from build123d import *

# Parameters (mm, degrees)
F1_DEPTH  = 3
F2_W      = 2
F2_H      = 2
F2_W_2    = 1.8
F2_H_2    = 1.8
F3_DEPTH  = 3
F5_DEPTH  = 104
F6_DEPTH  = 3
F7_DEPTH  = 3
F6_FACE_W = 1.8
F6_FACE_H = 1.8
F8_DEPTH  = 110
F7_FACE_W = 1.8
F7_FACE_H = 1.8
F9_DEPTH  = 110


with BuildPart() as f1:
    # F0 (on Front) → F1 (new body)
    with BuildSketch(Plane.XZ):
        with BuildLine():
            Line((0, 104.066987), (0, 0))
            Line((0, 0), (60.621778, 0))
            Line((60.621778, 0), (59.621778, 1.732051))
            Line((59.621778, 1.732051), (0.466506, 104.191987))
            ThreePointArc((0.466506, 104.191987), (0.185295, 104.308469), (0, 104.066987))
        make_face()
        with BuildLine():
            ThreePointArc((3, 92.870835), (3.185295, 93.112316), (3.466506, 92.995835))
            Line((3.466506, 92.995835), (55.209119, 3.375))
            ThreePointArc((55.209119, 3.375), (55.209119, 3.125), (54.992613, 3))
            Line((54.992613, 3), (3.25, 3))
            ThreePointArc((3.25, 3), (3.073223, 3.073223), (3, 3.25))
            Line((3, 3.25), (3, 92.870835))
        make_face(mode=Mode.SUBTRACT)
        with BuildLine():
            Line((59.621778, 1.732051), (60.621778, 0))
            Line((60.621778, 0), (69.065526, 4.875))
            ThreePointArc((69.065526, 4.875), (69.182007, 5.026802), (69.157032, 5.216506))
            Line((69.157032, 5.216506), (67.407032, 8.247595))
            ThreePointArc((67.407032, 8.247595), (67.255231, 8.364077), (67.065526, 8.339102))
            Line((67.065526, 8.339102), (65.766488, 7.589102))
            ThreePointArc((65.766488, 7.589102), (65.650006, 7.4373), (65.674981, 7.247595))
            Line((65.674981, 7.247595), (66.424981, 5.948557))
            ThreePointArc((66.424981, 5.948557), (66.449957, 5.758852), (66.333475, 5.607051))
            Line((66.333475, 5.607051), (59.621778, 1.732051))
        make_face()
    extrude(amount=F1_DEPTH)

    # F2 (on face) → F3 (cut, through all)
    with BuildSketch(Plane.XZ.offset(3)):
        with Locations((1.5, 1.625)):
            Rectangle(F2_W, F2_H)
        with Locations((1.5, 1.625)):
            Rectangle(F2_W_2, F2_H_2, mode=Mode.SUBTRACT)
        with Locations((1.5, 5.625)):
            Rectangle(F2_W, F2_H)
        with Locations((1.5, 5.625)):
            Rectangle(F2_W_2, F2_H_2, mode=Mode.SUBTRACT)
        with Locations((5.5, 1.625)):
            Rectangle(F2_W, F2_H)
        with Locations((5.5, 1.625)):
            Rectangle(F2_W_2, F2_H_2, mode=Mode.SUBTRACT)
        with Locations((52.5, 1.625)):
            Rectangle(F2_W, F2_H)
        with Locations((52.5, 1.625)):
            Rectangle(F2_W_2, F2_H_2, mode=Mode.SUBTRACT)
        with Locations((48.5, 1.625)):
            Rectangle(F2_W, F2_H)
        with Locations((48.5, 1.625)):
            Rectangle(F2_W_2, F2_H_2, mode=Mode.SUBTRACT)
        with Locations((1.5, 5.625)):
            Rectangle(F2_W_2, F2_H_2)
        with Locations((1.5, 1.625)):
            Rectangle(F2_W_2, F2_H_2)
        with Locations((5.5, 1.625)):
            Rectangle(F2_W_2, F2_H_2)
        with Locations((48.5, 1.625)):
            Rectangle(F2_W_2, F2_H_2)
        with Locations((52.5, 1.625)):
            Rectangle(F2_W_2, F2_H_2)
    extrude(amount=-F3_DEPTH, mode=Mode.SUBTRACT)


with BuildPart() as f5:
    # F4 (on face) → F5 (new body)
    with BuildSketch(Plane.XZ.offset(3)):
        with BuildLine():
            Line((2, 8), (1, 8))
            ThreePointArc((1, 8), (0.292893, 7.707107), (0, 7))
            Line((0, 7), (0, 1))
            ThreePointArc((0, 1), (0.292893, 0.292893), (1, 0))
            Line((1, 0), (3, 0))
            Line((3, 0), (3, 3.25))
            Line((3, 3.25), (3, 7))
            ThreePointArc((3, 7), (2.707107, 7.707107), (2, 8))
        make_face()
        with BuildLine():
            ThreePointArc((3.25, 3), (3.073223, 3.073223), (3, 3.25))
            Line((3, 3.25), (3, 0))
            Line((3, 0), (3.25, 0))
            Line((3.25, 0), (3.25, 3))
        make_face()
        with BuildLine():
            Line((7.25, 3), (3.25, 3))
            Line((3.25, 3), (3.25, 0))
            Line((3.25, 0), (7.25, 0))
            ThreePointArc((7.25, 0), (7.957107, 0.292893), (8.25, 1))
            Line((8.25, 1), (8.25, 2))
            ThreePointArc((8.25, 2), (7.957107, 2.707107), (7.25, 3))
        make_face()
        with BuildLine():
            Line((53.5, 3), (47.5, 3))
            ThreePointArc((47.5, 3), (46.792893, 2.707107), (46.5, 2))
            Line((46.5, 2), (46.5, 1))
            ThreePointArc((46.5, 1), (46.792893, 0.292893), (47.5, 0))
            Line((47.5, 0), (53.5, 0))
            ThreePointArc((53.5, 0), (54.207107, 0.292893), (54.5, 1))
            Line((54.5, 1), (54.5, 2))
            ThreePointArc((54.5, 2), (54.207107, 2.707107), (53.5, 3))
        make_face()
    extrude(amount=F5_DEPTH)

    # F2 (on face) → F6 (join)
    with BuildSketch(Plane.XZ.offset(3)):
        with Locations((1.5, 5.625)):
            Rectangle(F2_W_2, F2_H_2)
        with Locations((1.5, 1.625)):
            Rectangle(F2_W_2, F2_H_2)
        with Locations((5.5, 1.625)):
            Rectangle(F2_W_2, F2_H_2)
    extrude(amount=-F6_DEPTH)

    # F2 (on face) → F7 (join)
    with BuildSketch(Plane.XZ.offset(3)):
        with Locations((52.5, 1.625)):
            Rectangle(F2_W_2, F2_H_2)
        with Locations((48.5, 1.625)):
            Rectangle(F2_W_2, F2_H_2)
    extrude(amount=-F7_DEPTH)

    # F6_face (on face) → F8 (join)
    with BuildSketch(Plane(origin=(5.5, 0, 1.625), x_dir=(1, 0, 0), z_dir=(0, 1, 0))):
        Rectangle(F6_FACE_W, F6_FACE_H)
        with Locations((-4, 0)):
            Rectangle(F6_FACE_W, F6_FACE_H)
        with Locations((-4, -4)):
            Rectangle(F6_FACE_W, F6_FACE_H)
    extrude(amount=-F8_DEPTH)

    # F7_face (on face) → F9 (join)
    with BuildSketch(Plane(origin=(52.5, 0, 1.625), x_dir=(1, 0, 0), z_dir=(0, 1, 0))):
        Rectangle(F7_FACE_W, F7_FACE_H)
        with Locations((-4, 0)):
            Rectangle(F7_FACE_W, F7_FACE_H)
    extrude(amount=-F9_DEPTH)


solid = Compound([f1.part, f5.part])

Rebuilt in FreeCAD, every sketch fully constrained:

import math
import FreeCAD as App
import Part
import Sketcher

V = App.Vector
Q = App.Units.Quantity


def add_polygon(sketch, points):
    """Adds a closed chain of lines whose ends are joined by coincident constraints."""
    first, n = sketch.GeometryCount, len(points)
    for a, b in zip(points, points[1:] + points[:1]):
        sketch.addGeometry(Part.LineSegment(App.Vector(*a, 0), App.Vector(*b, 0)), False)
    for i in range(n):
        sketch.addConstraint(Sketcher.Constraint("Coincident", first + i, 2, first + (i + 1) % n, 1))

doc = App.newDocument("Part")
body = doc.addObject("PartDesign::Body", "Body")

sketch1 = body.newObject("Sketcher::SketchObject", "Sketch")
sketch1.AttachmentSupport = (doc.getObject("XZ_Plane"), [""])
sketch1.MapMode = "FlatFace"
sketch1.addGeometry(Part.LineSegment(V(0, 104.07, 0), V(0, 0, 0)), False)
sketch1.addGeometry(Part.LineSegment(V(0, 0, 0), V(60.62, 0, 0)), False)
sketch1.addGeometry(Part.LineSegment(V(60.62, 0, 0), V(69.07, 4.88, 0)), False)
sketch1.addGeometry(Part.ArcOfCircle(Part.Circle(V(68.94, 5.09, 0), V(0, 0, 1), 0.25), math.radians(-60), math.radians(30)), False)
sketch1.addGeometry(Part.LineSegment(V(69.16, 5.22, 0), V(67.41, 8.25, 0)), False)
sketch1.addGeometry(Part.ArcOfCircle(Part.Circle(V(67.19, 8.12, 0), V(0, 0, 1), 0.25), math.radians(30), math.radians(120)), False)
sketch1.addGeometry(Part.LineSegment(V(67.07, 8.34, 0), V(65.77, 7.59, 0)), False)
sketch1.addGeometry(Part.ArcOfCircle(Part.Circle(V(65.89, 7.37, 0), V(0, 0, 1), 0.25), math.radians(120), math.radians(210)), False)
sketch1.addGeometry(Part.LineSegment(V(65.67, 7.25, 0), V(66.42, 5.95, 0)), False)
sketch1.addGeometry(Part.ArcOfCircle(Part.Circle(V(66.21, 5.82, 0), V(0, 0, 1), 0.25), math.radians(-60), math.radians(30)), False)
sketch1.addGeometry(Part.LineSegment(V(66.33, 5.61, 0), V(59.62, 1.73, 0)), False)
sketch1.addGeometry(Part.LineSegment(V(59.62, 1.73, 0), V(0.47, 104.19, 0)), False)
sketch1.addGeometry(Part.ArcOfCircle(Part.Circle(V(0.25, 104.07, 0), V(0, 0, 1), 0.25), math.radians(30), math.radians(180)), False)
sketch1.addGeometry(Part.LineSegment(V(3, 3.25, 0), V(3, 92.87, 0)), False)
sketch1.addGeometry(Part.ArcOfCircle(Part.Circle(V(3.25, 92.87, 0), V(0, 0, 1), 0.25), math.radians(30), math.radians(180)), False)
sketch1.addGeometry(Part.LineSegment(V(3.47, 93, 0), V(55.21, 3.38, 0)), False)
sketch1.addGeometry(Part.ArcOfCircle(Part.Circle(V(54.99, 3.25, 0), V(0, 0, 1), 0.25), math.radians(-90), math.radians(30)), False)
sketch1.addGeometry(Part.LineSegment(V(54.99, 3, 0), V(3.25, 3, 0)), False)
sketch1.addGeometry(Part.ArcOfCircle(Part.Circle(V(3.25, 3.25, 0), V(0, 0, 1), 0.25), math.radians(180), math.radians(270)), False)
sketch1.addConstraint(Sketcher.Constraint("Coincident", 0, 2, 1, 1))
sketch1.addConstraint(Sketcher.Constraint("Coincident", 1, 2, 2, 1))
sketch1.addConstraint(Sketcher.Constraint("Coincident", 2, 2, 3, 1))
sketch1.addConstraint(Sketcher.Constraint("Coincident", 3, 2, 4, 1))
sketch1.addConstraint(Sketcher.Constraint("Coincident", 4, 2, 5, 1))
sketch1.addConstraint(Sketcher.Constraint("Tangent", 5, 2, 6, 1))
sketch1.addConstraint(Sketcher.Constraint("Tangent", 6, 2, 7, 1))
sketch1.addConstraint(Sketcher.Constraint("Tangent", 7, 2, 8, 1))
sketch1.addConstraint(Sketcher.Constraint("Coincident", 8, 2, 9, 2))
sketch1.addConstraint(Sketcher.Constraint("Coincident", 9, 1, 10, 1))
sketch1.addConstraint(Sketcher.Constraint("Coincident", 10, 2, 11, 1))
sketch1.addConstraint(Sketcher.Constraint("Coincident", 11, 2, 12, 1))
sketch1.addConstraint(Sketcher.Constraint("Coincident", 12, 2, 0, 1))
sketch1.addConstraint(Sketcher.Constraint("Tangent", 13, 2, 14, 2))
sketch1.addConstraint(Sketcher.Constraint("Tangent", 14, 1, 15, 1))
sketch1.addConstraint(Sketcher.Constraint("Tangent", 15, 2, 16, 2))
sketch1.addConstraint(Sketcher.Constraint("Tangent", 16, 1, 17, 1))
sketch1.addConstraint(Sketcher.Constraint("Coincident", 17, 2, 18, 2))
sketch1.addConstraint(Sketcher.Constraint("Coincident", 18, 1, 13, 1))
sketch1.addConstraint(Sketcher.Constraint("Vertical", 0))
sketch1.addConstraint(Sketcher.Constraint("Horizontal", 1))
sketch1.addConstraint(Sketcher.Constraint("Vertical", 13))
sketch1.addConstraint(Sketcher.Constraint("Horizontal", 17))
sketch1.addConstraint(Sketcher.Constraint("Coincident", 0, 2, -1, 1))
sketch1.addConstraint(Sketcher.Constraint("Equal", 3, 5))
sketch1.addConstraint(Sketcher.Constraint("Equal", 5, 7))
sketch1.addConstraint(Sketcher.Constraint("Equal", 5, 9))
sketch1.addConstraint(Sketcher.Constraint("Equal", 7, 12))
sketch1.addConstraint(Sketcher.Constraint("Equal", 12, 14))
sketch1.addConstraint(Sketcher.Constraint("Equal", 14, 16))
sketch1.addConstraint(Sketcher.Constraint("Equal", 16, 18))
sketch1.addConstraint(Sketcher.Constraint("Perpendicular", 2, 4))
sketch1.addConstraint(Sketcher.Constraint("Perpendicular", 4, 6))
sketch1.addConstraint(Sketcher.Constraint("Perpendicular", 6, 8))
sketch1.addConstraint(Sketcher.Constraint("Perpendicular", 8, 10))
sketch1.addConstraint(Sketcher.Constraint("Perpendicular", 10, 11))
sketch1.addConstraint(Sketcher.Constraint("Parallel", 11, 15))
sketch1.addConstraint(Sketcher.Constraint("Horizontal", 16, 3, 18, 1))
sketch1.addConstraint(Sketcher.Constraint("Vertical", 18, 3, 17, 2))
sketch1.addConstraint(Sketcher.Constraint("Equal", 6, 8))
sketch1.addConstraint(Sketcher.Constraint("Angle", 2, Q("29.999999 deg")))
sketch1.addConstraint(Sketcher.Constraint("Radius", 3, Q("0.250001 mm")))
sketch1.addConstraint(Sketcher.Constraint("DistanceX", -1, 1, 13, 2, Q("3 mm")))
sketch1.addConstraint(Sketcher.Constraint("DistanceY", -1, 1, 16, 1, Q("3 mm")))
sketch1.addConstraint(Sketcher.Constraint("DistanceX", 10, 2, 1, 2, Q("1 mm")))
sketch1.addConstraint(Sketcher.Constraint("DistanceX", 11, 2, 14, 1, Q("3 mm")))
sketch1.addConstraint(Sketcher.Constraint("Distance", 4, Q("3.5 mm")))
sketch1.addConstraint(Sketcher.Constraint("Distance", 6, Q("1.5 mm")))
sketch1.addConstraint(Sketcher.Constraint("Distance", 2, Q("9.75 mm")))
sketch1.addConstraint(Sketcher.Constraint("Distance", 10, Q("7.75 mm")))
sketch1.addConstraint(Sketcher.Constraint("DistanceX", 5, 3, 3, 3, Q("1.749999 mm")))
sketch1.addConstraint(Sketcher.Constraint("DistanceX", 3, 3, 2, 2, Q("0.125001 mm")))
sketch1.addConstraint(Sketcher.Constraint("DistanceY", 3, 3, 3, 2, Q("0.125 mm")))
sketch1.addConstraint(Sketcher.Constraint("DistanceY", 9, 3, 8, 2, Q("0.125001 mm")))
sketch1.addConstraint(Sketcher.Constraint("DistanceY", 12, 2, 11, 2, Q("0.125 mm")))
sketch1.addConstraint(Sketcher.Constraint("DistanceX", 1, 1, 1, 2, Q("60.621778 mm")))
sketch1.addConstraint(Sketcher.Constraint("DistanceX", 17, 2, 17, 1, Q("51.742613 mm")))
pad1 = body.newObject("PartDesign::Pad", "Pad")
pad1.Profile = sketch1
pad1.Length = 3

sketch2 = body.newObject("Sketcher::SketchObject", "Sketch001")
sketch2.AttachmentSupport = (doc.getObject("XZ_Plane"), [""])
sketch2.MapMode = "FlatFace"
sketch2.AttachmentOffset = App.Placement(V(0, 0, 3), App.Rotation())
add_polygon(sketch2, [(0.5, 2.6), (0.5, 0.6), (2.5, 0.6), (2.5, 2.6)])
add_polygon(sketch2, [(0.5, 6.6), (0.5, 4.6), (2.5, 4.6), (2.5, 6.6)])
add_polygon(sketch2, [(4.5, 2.6), (4.5, 0.6), (6.5, 0.6), (6.5, 2.6)])
add_polygon(sketch2, [(51.5, 2.6), (51.5, 0.6), (53.5, 0.6), (53.5, 2.6)])
add_polygon(sketch2, [(47.5, 2.6), (47.5, 0.6), (49.5, 0.6), (49.5, 2.6)])
sketch2.addConstraint(Sketcher.Constraint("Vertical", 0))
sketch2.addConstraint(Sketcher.Constraint("Horizontal", 1))
sketch2.addConstraint(Sketcher.Constraint("Vertical", 2))
sketch2.addConstraint(Sketcher.Constraint("Horizontal", 3))
sketch2.addConstraint(Sketcher.Constraint("Vertical", 4))
sketch2.addConstraint(Sketcher.Constraint("Horizontal", 5))
sketch2.addConstraint(Sketcher.Constraint("Vertical", 6))
sketch2.addConstraint(Sketcher.Constraint("Horizontal", 7))
sketch2.addConstraint(Sketcher.Constraint("Vertical", 8))
sketch2.addConstraint(Sketcher.Constraint("Horizontal", 9))
sketch2.addConstraint(Sketcher.Constraint("Vertical", 10))
sketch2.addConstraint(Sketcher.Constraint("Horizontal", 11))
sketch2.addConstraint(Sketcher.Constraint("Vertical", 12))
sketch2.addConstraint(Sketcher.Constraint("Horizontal", 13))
sketch2.addConstraint(Sketcher.Constraint("Vertical", 14))
sketch2.addConstraint(Sketcher.Constraint("Horizontal", 15))
sketch2.addConstraint(Sketcher.Constraint("Vertical", 16))
sketch2.addConstraint(Sketcher.Constraint("Horizontal", 17))
sketch2.addConstraint(Sketcher.Constraint("Vertical", 18))
sketch2.addConstraint(Sketcher.Constraint("Horizontal", 19))
sketch2.addConstraint(Sketcher.Constraint("Horizontal", 1, 2, 8, 2))
sketch2.addConstraint(Sketcher.Constraint("Horizontal", 3, 2, 10, 2))
sketch2.addConstraint(Sketcher.Constraint("Horizontal", 9, 2, 12, 2))
sketch2.addConstraint(Sketcher.Constraint("Horizontal", 11, 2, 14, 2))
sketch2.addConstraint(Sketcher.Constraint("Horizontal", 13, 2, 16, 2))
sketch2.addConstraint(Sketcher.Constraint("Horizontal", 15, 2, 18, 2))
sketch2.addConstraint(Sketcher.Constraint("Vertical", 3, 2, 4, 2))
sketch2.addConstraint(Sketcher.Constraint("Vertical", 2, 2, 5, 2))
sketch2.addConstraint(Sketcher.Constraint("Equal", 7, 9))
sketch2.addConstraint(Sketcher.Constraint("Equal", 11, 13))
sketch2.addConstraint(Sketcher.Constraint("Equal", 15, 17))
sketch2.addConstraint(Sketcher.Constraint("Equal", 19, 0))
sketch2.addConstraint(Sketcher.Constraint("Equal", 2, 4))
sketch2.addConstraint(Sketcher.Constraint("DistanceX", 1, 1, 1, 2, Q("2 mm")))
sketch2.addConstraint(Sketcher.Constraint("DistanceY", 3, 2, 4, 2, Q("2 mm")))
sketch2.addConstraint(Sketcher.Constraint("DistanceX", 1, 2, 8, 2, Q("2 mm")))
sketch2.addConstraint(Sketcher.Constraint("DistanceX", 9, 2, 12, 2, Q("45 mm")))
sketch2.addConstraint(Sketcher.Constraint("DistanceX", 16, 2, 12, 2, Q("4 mm")))
sketch2.addConstraint(Sketcher.Constraint("DistanceX", -1, 1, 0, 2, Q("0.5 mm")))
sketch2.addConstraint(Sketcher.Constraint("DistanceY", -1, 1, 0, 2, Q("0.625 mm")))
pocket1 = body.newObject("PartDesign::Pocket", "Pocket")
pocket1.Profile = sketch2
pocket1.Type = "ThroughAll"
body2 = doc.addObject("PartDesign::Body", "Body001")
body2.AllowCompound = True

sketch3 = body2.newObject("Sketcher::SketchObject", "Sketch002")
sketch3.AttachmentSupport = (doc.getObject("XZ_Plane001"), [""])
sketch3.MapMode = "FlatFace"
sketch3.AttachmentOffset = App.Placement(V(0, 0, 3), App.Rotation())
sketch3.addGeometry(Part.LineSegment(V(2, 8, 0), V(1, 8, 0)), False)
sketch3.addGeometry(Part.ArcOfCircle(Part.Circle(V(1, 7, 0), V(0, 0, 1), 1), math.radians(90), math.radians(180)), False)
sketch3.addGeometry(Part.LineSegment(V(0, 7, 0), V(0, 1, 0)), False)
sketch3.addGeometry(Part.ArcOfCircle(Part.Circle(V(1, 1, 0), V(0, 0, 1), 1), math.radians(180), math.radians(270)), False)
sketch3.addGeometry(Part.LineSegment(V(1, 0, 0), V(7.25, 0, 0)), False)
sketch3.addGeometry(Part.ArcOfCircle(Part.Circle(V(7.25, 1, 0), V(0, 0, 1), 1), math.radians(-90), math.radians(0)), False)
sketch3.addGeometry(Part.LineSegment(V(8.25, 1, 0), V(8.25, 2, 0)), False)
sketch3.addGeometry(Part.ArcOfCircle(Part.Circle(V(7.25, 2, 0), V(0, 0, 1), 1), math.radians(0), math.radians(90)), False)
sketch3.addGeometry(Part.LineSegment(V(7.25, 3, 0), V(3.25, 3, 0)), False)
sketch3.addGeometry(Part.ArcOfCircle(Part.Circle(V(3.25, 3.25, 0), V(0, 0, 1), 0.25), math.radians(180), math.radians(270)), False)
sketch3.addGeometry(Part.LineSegment(V(3, 3.25, 0), V(3, 7, 0)), False)
sketch3.addGeometry(Part.ArcOfCircle(Part.Circle(V(2, 7, 0), V(0, 0, 1), 1), math.radians(0), math.radians(90)), False)
sketch3.addGeometry(Part.LineSegment(V(53.5, 3, 0), V(47.5, 3, 0)), False)
sketch3.addGeometry(Part.ArcOfCircle(Part.Circle(V(47.5, 2, 0), V(0, 0, 1), 1), math.radians(90), math.radians(180)), False)
sketch3.addGeometry(Part.LineSegment(V(46.5, 2, 0), V(46.5, 1, 0)), False)
sketch3.addGeometry(Part.ArcOfCircle(Part.Circle(V(47.5, 1, 0), V(0, 0, 1), 1), math.radians(180), math.radians(270)), False)
sketch3.addGeometry(Part.LineSegment(V(47.5, 0, 0), V(53.5, 0, 0)), False)
sketch3.addGeometry(Part.ArcOfCircle(Part.Circle(V(53.5, 1, 0), V(0, 0, 1), 1), math.radians(-90), math.radians(0)), False)
sketch3.addGeometry(Part.LineSegment(V(54.5, 1, 0), V(54.5, 2, 0)), False)
sketch3.addGeometry(Part.ArcOfCircle(Part.Circle(V(53.5, 2, 0), V(0, 0, 1), 1), math.radians(0), math.radians(90)), False)
sketch3.addConstraint(Sketcher.Constraint("Tangent", 0, 2, 1, 1))
sketch3.addConstraint(Sketcher.Constraint("Tangent", 1, 2, 2, 1))
sketch3.addConstraint(Sketcher.Constraint("Tangent", 2, 2, 3, 1))
sketch3.addConstraint(Sketcher.Constraint("Tangent", 3, 2, 4, 1))
sketch3.addConstraint(Sketcher.Constraint("Tangent", 4, 2, 5, 1))
sketch3.addConstraint(Sketcher.Constraint("Tangent", 5, 2, 6, 1))
sketch3.addConstraint(Sketcher.Constraint("Tangent", 6, 2, 7, 1))
sketch3.addConstraint(Sketcher.Constraint("Tangent", 7, 2, 8, 1))
sketch3.addConstraint(Sketcher.Constraint("Coincident", 8, 2, 9, 2))
sketch3.addConstraint(Sketcher.Constraint("Coincident", 9, 1, 10, 1))
sketch3.addConstraint(Sketcher.Constraint("Tangent", 10, 2, 11, 1))
sketch3.addConstraint(Sketcher.Constraint("Tangent", 11, 2, 0, 1))
sketch3.addConstraint(Sketcher.Constraint("Tangent", 12, 2, 13, 1))
sketch3.addConstraint(Sketcher.Constraint("Tangent", 13, 2, 14, 1))
sketch3.addConstraint(Sketcher.Constraint("Tangent", 14, 2, 15, 1))
sketch3.addConstraint(Sketcher.Constraint("Tangent", 15, 2, 16, 1))
sketch3.addConstraint(Sketcher.Constraint("Tangent", 16, 2, 17, 1))
sketch3.addConstraint(Sketcher.Constraint("Tangent", 17, 2, 18, 1))
sketch3.addConstraint(Sketcher.Constraint("Tangent", 18, 2, 19, 1))
sketch3.addConstraint(Sketcher.Constraint("Tangent", 19, 2, 12, 1))
sketch3.addConstraint(Sketcher.Constraint("Horizontal", 0))
sketch3.addConstraint(Sketcher.Constraint("Vertical", 2))
sketch3.addConstraint(Sketcher.Constraint("Horizontal", 4))
sketch3.addConstraint(Sketcher.Constraint("Vertical", 6))
sketch3.addConstraint(Sketcher.Constraint("Horizontal", 8))
sketch3.addConstraint(Sketcher.Constraint("Vertical", 10))
sketch3.addConstraint(Sketcher.Constraint("Horizontal", 12))
sketch3.addConstraint(Sketcher.Constraint("Vertical", 14))
sketch3.addConstraint(Sketcher.Constraint("Horizontal", 16))
sketch3.addConstraint(Sketcher.Constraint("Vertical", 18))
sketch3.addConstraint(Sketcher.Constraint("Equal", 1, 3))
sketch3.addConstraint(Sketcher.Constraint("Equal", 3, 5))
sketch3.addConstraint(Sketcher.Constraint("Equal", 5, 7))
sketch3.addConstraint(Sketcher.Constraint("Equal", 7, 11))
sketch3.addConstraint(Sketcher.Constraint("Equal", 11, 13))
sketch3.addConstraint(Sketcher.Constraint("Equal", 13, 15))
sketch3.addConstraint(Sketcher.Constraint("Equal", 15, 17))
sketch3.addConstraint(Sketcher.Constraint("Equal", 17, 19))
sketch3.addConstraint(Sketcher.Constraint("PointOnObject", 1, 2, -2))
sketch3.addConstraint(Sketcher.Constraint("PointOnObject", 3, 2, -1))
sketch3.addConstraint(Sketcher.Constraint("PointOnObject", 15, 2, -1))
sketch3.addConstraint(Sketcher.Constraint("Horizontal", 7, 3, 13, 3))
sketch3.addConstraint(Sketcher.Constraint("Vertical", 9, 3, 8, 2))
sketch3.addConstraint(Sketcher.Constraint("Equal", 16, 2))
sketch3.addConstraint(Sketcher.Constraint("Equal", 0, 6))
sketch3.addConstraint(Sketcher.Constraint("Radius", 1, Q("0.999999 mm")))
sketch3.addConstraint(Sketcher.Constraint("DistanceX", 0, 2, 0, 1, Q("1 mm")))
sketch3.addConstraint(Sketcher.Constraint("DistanceX", 8, 2, 8, 1, Q("4 mm")))
sketch3.addConstraint(Sketcher.Constraint("DistanceX", 12, 2, 12, 1, Q("6 mm")))
sketch3.addConstraint(Sketcher.Constraint("Radius", 9, Q("0.249999 mm")))
sketch3.addConstraint(Sketcher.Constraint("DistanceY", 10, 1, 10, 2, Q("3.75 mm")))
sketch3.addConstraint(Sketcher.Constraint("DistanceX", -1, 1, 13, 3, Q("47.499999 mm")))
pad2 = body2.newObject("PartDesign::Pad", "Pad001")
pad2.Profile = sketch3
pad2.Length = 104

sketch4 = body2.newObject("Sketcher::SketchObject", "Sketch003")
sketch4.AttachmentSupport = (doc.getObject("XZ_Plane001"), [""])
sketch4.MapMode = "FlatFace"
sketch4.AttachmentOffset = App.Placement(V(0, 0, 3), App.Rotation())
add_polygon(sketch4, [(0.6, 6.5), (0.6, 4.7), (2.4, 4.7), (2.4, 6.5)])
add_polygon(sketch4, [(0.6, 2.5), (0.6, 0.7), (2.4, 0.7), (2.4, 2.5)])
add_polygon(sketch4, [(4.6, 2.5), (4.6, 0.7), (6.4, 0.7), (6.4, 2.5)])
sketch4.addConstraint(Sketcher.Constraint("Vertical", 0))
sketch4.addConstraint(Sketcher.Constraint("Horizontal", 1))
sketch4.addConstraint(Sketcher.Constraint("Vertical", 2))
sketch4.addConstraint(Sketcher.Constraint("Horizontal", 3))
sketch4.addConstraint(Sketcher.Constraint("Vertical", 4))
sketch4.addConstraint(Sketcher.Constraint("Horizontal", 5))
sketch4.addConstraint(Sketcher.Constraint("Vertical", 6))
sketch4.addConstraint(Sketcher.Constraint("Horizontal", 7))
sketch4.addConstraint(Sketcher.Constraint("Vertical", 8))
sketch4.addConstraint(Sketcher.Constraint("Horizontal", 9))
sketch4.addConstraint(Sketcher.Constraint("Vertical", 10))
sketch4.addConstraint(Sketcher.Constraint("Horizontal", 11))
sketch4.addConstraint(Sketcher.Constraint("Horizontal", 5, 2, 8, 2))
sketch4.addConstraint(Sketcher.Constraint("Horizontal", 7, 2, 10, 2))
sketch4.addConstraint(Sketcher.Constraint("Vertical", 3, 2, 4, 2))
sketch4.addConstraint(Sketcher.Constraint("Vertical", 2, 2, 5, 2))
sketch4.addConstraint(Sketcher.Constraint("Equal", 7, 9))
sketch4.addConstraint(Sketcher.Constraint("Equal", 11, 0))
sketch4.addConstraint(Sketcher.Constraint("Equal", 2, 4))
sketch4.addConstraint(Sketcher.Constraint("DistanceX", 1, 1, 1, 2, Q("1.8 mm")))
sketch4.addConstraint(Sketcher.Constraint("DistanceY", 4, 2, 0, 2, Q("4 mm")))
sketch4.addConstraint(Sketcher.Constraint("DistanceX", 4, 2, 8, 2, Q("4 mm")))
sketch4.addConstraint(Sketcher.Constraint("DistanceX", -1, 1, 0, 2, Q("0.6 mm")))
sketch4.addConstraint(Sketcher.Constraint("DistanceY", -1, 1, 0, 2, Q("4.725 mm")))
pad3 = body2.newObject("PartDesign::Pad", "Pad002")
pad3.Profile = sketch4
pad3.Length = 3
pad3.Reversed = True

sketch5 = body2.newObject("Sketcher::SketchObject", "Sketch004")
sketch5.AttachmentSupport = (doc.getObject("XZ_Plane001"), [""])
sketch5.MapMode = "FlatFace"
sketch5.AttachmentOffset = App.Placement(V(0, 0, 3), App.Rotation())
add_polygon(sketch5, [(51.6, 2.5), (51.6, 0.7), (53.4, 0.7), (53.4, 2.5)])
add_polygon(sketch5, [(47.6, 2.5), (47.6, 0.7), (49.4, 0.7), (49.4, 2.5)])
sketch5.addConstraint(Sketcher.Constraint("Vertical", 0))
sketch5.addConstraint(Sketcher.Constraint("Horizontal", 1))
sketch5.addConstraint(Sketcher.Constraint("Vertical", 2))
sketch5.addConstraint(Sketcher.Constraint("Horizontal", 3))
sketch5.addConstraint(Sketcher.Constraint("Vertical", 4))
sketch5.addConstraint(Sketcher.Constraint("Horizontal", 5))
sketch5.addConstraint(Sketcher.Constraint("Vertical", 6))
sketch5.addConstraint(Sketcher.Constraint("Horizontal", 7))
sketch5.addConstraint(Sketcher.Constraint("Horizontal", 1, 2, 4, 2))
sketch5.addConstraint(Sketcher.Constraint("Horizontal", 3, 2, 6, 2))
sketch5.addConstraint(Sketcher.Constraint("Equal", 3, 5))
sketch5.addConstraint(Sketcher.Constraint("Equal", 7, 0))
sketch5.addConstraint(Sketcher.Constraint("DistanceX", 1, 1, 1, 2, Q("1.8 mm")))
sketch5.addConstraint(Sketcher.Constraint("DistanceX", 4, 2, 0, 2, Q("4 mm")))
sketch5.addConstraint(Sketcher.Constraint("DistanceX", -1, 1, 0, 2, Q("51.6 mm")))
sketch5.addConstraint(Sketcher.Constraint("DistanceY", -1, 1, 0, 2, Q("0.725 mm")))
pad4 = body2.newObject("PartDesign::Pad", "Pad003")
pad4.Profile = sketch5
pad4.Length = 3
pad4.Reversed = True

sketch6 = body2.newObject("Sketcher::SketchObject", "Sketch005")
sketch6.AttachmentSupport = (doc.getObject("XZ_Plane001"), [""])
sketch6.MapMode = "FlatFace"
add_polygon(sketch6, [(4.6, 0.7), (4.6, 2.5), (6.4, 2.5), (6.4, 0.7)])
add_polygon(sketch6, [(0.6, 0.7), (0.6, 2.5), (2.4, 2.5), (2.4, 0.7)])
add_polygon(sketch6, [(0.6, 4.7), (0.6, 6.5), (2.4, 6.5), (2.4, 4.7)])
sketch6.addConstraint(Sketcher.Constraint("Vertical", 0))
sketch6.addConstraint(Sketcher.Constraint("Horizontal", 1))
sketch6.addConstraint(Sketcher.Constraint("Vertical", 2))
sketch6.addConstraint(Sketcher.Constraint("Horizontal", 3))
sketch6.addConstraint(Sketcher.Constraint("Vertical", 4))
sketch6.addConstraint(Sketcher.Constraint("Horizontal", 5))
sketch6.addConstraint(Sketcher.Constraint("Vertical", 6))
sketch6.addConstraint(Sketcher.Constraint("Horizontal", 7))
sketch6.addConstraint(Sketcher.Constraint("Vertical", 8))
sketch6.addConstraint(Sketcher.Constraint("Horizontal", 9))
sketch6.addConstraint(Sketcher.Constraint("Vertical", 10))
sketch6.addConstraint(Sketcher.Constraint("Horizontal", 11))
sketch6.addConstraint(Sketcher.Constraint("Horizontal", 1, 2, 4, 2))
sketch6.addConstraint(Sketcher.Constraint("Horizontal", 3, 2, 6, 2))
sketch6.addConstraint(Sketcher.Constraint("Vertical", 7, 2, 8, 2))
sketch6.addConstraint(Sketcher.Constraint("Vertical", 6, 2, 9, 2))
sketch6.addConstraint(Sketcher.Constraint("Equal", 3, 5))
sketch6.addConstraint(Sketcher.Constraint("Equal", 11, 0))
sketch6.addConstraint(Sketcher.Constraint("Equal", 6, 8))
sketch6.addConstraint(Sketcher.Constraint("DistanceX", 1, 1, 1, 2, Q("1.8 mm")))
sketch6.addConstraint(Sketcher.Constraint("DistanceX", 4, 2, 0, 2, Q("4 mm")))
sketch6.addConstraint(Sketcher.Constraint("DistanceY", 4, 2, 8, 2, Q("4 mm")))
sketch6.addConstraint(Sketcher.Constraint("DistanceX", -1, 1, 0, 2, Q("4.6 mm")))
sketch6.addConstraint(Sketcher.Constraint("DistanceY", -1, 1, 0, 2, Q("2.525 mm")))
pad5 = body2.newObject("PartDesign::Pad", "Pad004")
pad5.Profile = sketch6
pad5.Length = 110

sketch7 = body2.newObject("Sketcher::SketchObject", "Sketch006")
sketch7.AttachmentSupport = (doc.getObject("XZ_Plane001"), [""])
sketch7.MapMode = "FlatFace"
add_polygon(sketch7, [(51.6, 0.7), (51.6, 2.5), (53.4, 2.5), (53.4, 0.7)])
add_polygon(sketch7, [(47.6, 0.7), (47.6, 2.5), (49.4, 2.5), (49.4, 0.7)])
sketch7.addConstraint(Sketcher.Constraint("Vertical", 0))
sketch7.addConstraint(Sketcher.Constraint("Horizontal", 1))
sketch7.addConstraint(Sketcher.Constraint("Vertical", 2))
sketch7.addConstraint(Sketcher.Constraint("Horizontal", 3))
sketch7.addConstraint(Sketcher.Constraint("Vertical", 4))
sketch7.addConstraint(Sketcher.Constraint("Horizontal", 5))
sketch7.addConstraint(Sketcher.Constraint("Vertical", 6))
sketch7.addConstraint(Sketcher.Constraint("Horizontal", 7))
sketch7.addConstraint(Sketcher.Constraint("Horizontal", 1, 2, 4, 2))
sketch7.addConstraint(Sketcher.Constraint("Horizontal", 3, 2, 6, 2))
sketch7.addConstraint(Sketcher.Constraint("Equal", 3, 5))
sketch7.addConstraint(Sketcher.Constraint("Equal", 7, 0))
sketch7.addConstraint(Sketcher.Constraint("DistanceX", 1, 1, 1, 2, Q("1.8 mm")))
sketch7.addConstraint(Sketcher.Constraint("DistanceX", 4, 2, 0, 2, Q("4 mm")))
sketch7.addConstraint(Sketcher.Constraint("DistanceX", -1, 1, 0, 2, Q("51.6 mm")))
sketch7.addConstraint(Sketcher.Constraint("DistanceY", -1, 1, 0, 2, Q("2.525 mm")))
pad6 = body2.newObject("PartDesign::Pad", "Pad005")
pad6.Profile = sketch7
pad6.Length = 110

doc.recompute()
